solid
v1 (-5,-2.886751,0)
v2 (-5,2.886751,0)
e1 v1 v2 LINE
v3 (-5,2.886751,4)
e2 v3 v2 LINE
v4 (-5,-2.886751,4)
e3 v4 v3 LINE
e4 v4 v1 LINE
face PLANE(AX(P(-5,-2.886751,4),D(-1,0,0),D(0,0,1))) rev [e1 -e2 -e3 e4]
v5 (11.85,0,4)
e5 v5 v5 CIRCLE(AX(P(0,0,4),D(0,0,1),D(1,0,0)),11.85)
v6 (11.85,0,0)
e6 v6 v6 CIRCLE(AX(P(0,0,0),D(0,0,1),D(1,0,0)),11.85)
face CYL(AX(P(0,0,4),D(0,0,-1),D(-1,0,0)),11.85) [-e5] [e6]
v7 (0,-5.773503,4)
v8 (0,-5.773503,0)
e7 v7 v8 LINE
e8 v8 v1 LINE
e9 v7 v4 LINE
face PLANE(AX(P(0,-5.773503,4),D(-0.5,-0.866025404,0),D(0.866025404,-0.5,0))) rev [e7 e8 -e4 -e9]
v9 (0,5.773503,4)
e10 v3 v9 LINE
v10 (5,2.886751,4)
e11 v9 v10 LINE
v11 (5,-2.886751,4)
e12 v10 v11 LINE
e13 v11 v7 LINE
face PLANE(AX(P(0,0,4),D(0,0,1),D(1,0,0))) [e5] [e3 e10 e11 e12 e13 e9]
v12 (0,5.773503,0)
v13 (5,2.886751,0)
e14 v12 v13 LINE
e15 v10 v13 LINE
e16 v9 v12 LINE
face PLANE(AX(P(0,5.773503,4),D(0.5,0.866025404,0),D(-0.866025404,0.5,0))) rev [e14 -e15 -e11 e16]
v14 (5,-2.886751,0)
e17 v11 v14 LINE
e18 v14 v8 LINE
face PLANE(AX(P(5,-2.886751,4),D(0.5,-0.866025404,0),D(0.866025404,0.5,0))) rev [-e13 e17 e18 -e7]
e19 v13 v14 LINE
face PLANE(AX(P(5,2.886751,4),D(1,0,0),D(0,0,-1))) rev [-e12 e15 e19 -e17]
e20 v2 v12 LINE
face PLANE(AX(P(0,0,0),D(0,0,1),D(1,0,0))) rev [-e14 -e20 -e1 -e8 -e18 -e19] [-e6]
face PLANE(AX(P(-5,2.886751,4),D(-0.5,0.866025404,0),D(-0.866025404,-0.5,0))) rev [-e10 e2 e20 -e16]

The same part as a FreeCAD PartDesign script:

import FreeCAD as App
import Part
import Sketcher
Q = App.Units.Quantity

doc = App.newDocument("Part")
body = doc.addObject("PartDesign::Body", "Body")

# Sketch on XY plane
sketch1 = body.newObject("Sketcher::SketchObject", "Sketch")
sketch1.AttachmentSupport = (doc.getObject("XY_Plane"), [""])
sketch1.MapMode = "FlatFace"
sketch1.addGeometry(Part.Circle(App.Vector(0, 0, 0), App.Vector(0, 0, 1), 12), False)
sketch1.addConstraint(Sketcher.Constraint("Coincident", 0, 3, -1, 1))
sketch1.addConstraint(Sketcher.Constraint("Diameter", 0, 23.7))
pad1 = body.newObject("PartDesign::Pad", "Pad")
pad1.Profile = sketch1
pad1.Length = 4

# Sketch on XY plane
sketch2 = body.newObject("Sketcher::SketchObject", "Sketch001")
sketch2.AttachmentSupport = (doc.getObject("XY_Plane"), [""])
sketch2.MapMode = "FlatFace"
sketch2.addGeometry(Part.LineSegment(App.Vector(0, 6, 0), App.Vector(5, 3, 0)), False)
sketch2.addGeometry(Part.LineSegment(App.Vector(5, 3, 0), App.Vector(5, -3, 0)), False)
sketch2.addGeometry(Part.LineSegment(App.Vector(5, -3, 0), App.Vector(0, -6, 0)), False)
sketch2.addGeometry(Part.LineSegment(App.Vector(0, -6, 0), App.Vector(-5, -3, 0)), False)
sketch2.addGeometry(Part.LineSegment(App.Vector(-5, -3, 0), App.Vector(-5, 3, 0)), False)
sketch2.addGeometry(Part.LineSegment(App.Vector(-5, 3, 0), App.Vector(0, 6, 0)), False)
sketch2.addConstraint(Sketcher.Constraint("Coincident", 0, 2, 1, 1))
sketch2.addConstraint(Sketcher.Constraint("Coincident", 1, 2, 2, 1))
sketch2.addConstraint(Sketcher.Constraint("Coincident", 2, 2, 3, 1))
sketch2.addConstraint(Sketcher.Constraint("Coincident", 3, 2, 4, 1))
sketch2.addConstraint(Sketcher.Constraint("Coincident", 4, 2, 5, 1))
sketch2.addConstraint(Sketcher.Constraint("Coincident", 5, 2, 0, 1))
sketch2.addConstraint(Sketcher.Constraint("Vertical", 1))
sketch2.addConstraint(Sketcher.Constraint("Vertical", 4))
sketch2.addConstraint(Sketcher.Constraint("Symmetric", 0, 2, 3, 2, -1, 1))
sketch2.addConstraint(Sketcher.Constraint("Symmetric", 2, 2, 5, 2, -1, 1))
sketch2.addConstraint(Sketcher.Constraint("PointOnObject", 2, 2, -2))
sketch2.addConstraint(Sketcher.Constraint("Parallel", 2, 5))
sketch2.addConstraint(Sketcher.Constraint("Horizontal", 1, 2, 3, 2))
sketch2.addConstraint(Sketcher.Constraint("Angle", 0, Q("-30 deg")))
sketch2.addConstraint(Sketcher.Constraint("DistanceX", -1, 1, 0, 2, 5.0))
sketch2.addConstraint(Sketcher.Constraint("DistanceY", 1, 2, 1, 1, 5.773503))
pocket1 = body.newObject("PartDesign::Pocket", "Pocket")
pocket1.Profile = sketch2
pocket1.Type = "ThroughAll"
pocket1.Reversed = True

doc.recompute()
